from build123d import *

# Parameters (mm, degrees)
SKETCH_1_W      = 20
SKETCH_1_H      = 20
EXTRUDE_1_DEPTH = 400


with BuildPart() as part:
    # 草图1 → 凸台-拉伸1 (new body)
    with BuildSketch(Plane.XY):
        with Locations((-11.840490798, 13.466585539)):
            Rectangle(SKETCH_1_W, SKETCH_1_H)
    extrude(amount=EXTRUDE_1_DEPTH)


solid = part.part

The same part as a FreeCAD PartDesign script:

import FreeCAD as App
import Part
import Sketcher

V = App.Vector


def add_polygon(sketch, points):
    """Adds a closed chain of lines whose ends are joined by coincident constraints."""
    first, n = sketch.GeometryCount, len(points)
    for a, b in zip(points, points[1:] + points[:1]):
        sketch.addGeometry(Part.LineSegment(App.Vector(*a, 0), App.Vector(*b, 0)), False)
    for i in range(n):
        sketch.addConstraint(Sketcher.Constraint("Coincident", first + i, 2, first + (i + 1) % n, 1))

doc = App.newDocument("Part")
params = doc.addObject("Spreadsheet::Sheet", "Params")
for row, (alias, value) in enumerate([
    ("sketch1_width", "20 mm"),
    ("pad1_length", "400 mm"),
], start=1):
    params.set(f"A{row}", alias)
    params.set(f"B{row}", "=" + value)
    params.setAlias(f"B{row}", alias)

body = doc.addObject("PartDesign::Body", "Body")

# Sketch on XY plane
sketch1 = doc.addObject("Sketcher::SketchObject", "Sketch")
body.addObject(sketch1)
sketch1.AttachmentSupport = (doc.XY_Plane, [""])
sketch1.MapMode = "FlatFace"
add_polygon(sketch1, [(-22, 23), (-22, 3), (-2, 3), (-2, 23)])  # lines 0-3
sketch1.addConstraint([
    Sketcher.Constraint("Vertical", 0),
    Sketcher.Constraint("Horizontal", 1),
    Sketcher.Constraint("Vertical", 2),
    Sketcher.Constraint("Horizontal", 3),
    Sketcher.Constraint("Equal", 3, 0),
    Sketcher.Constraint("DistanceX", 1, 1, 1, 2, 20.0),
    Sketcher.Constraint("DistanceX", 0, 2, -1, 1, 21.840491),
    Sketcher.Constraint("DistanceY", -1, 1, 0, 2, 3.466586),
])
sketch1.setExpression("Constraints[9]", "Params.sketch1_width")
pad1 = doc.addObject("PartDesign::Pad", "Pad")
body.addObject(pad1)
pad1.Profile = sketch1
pad1.setExpression("Length", "Params.pad1_length")

doc.recompute()
